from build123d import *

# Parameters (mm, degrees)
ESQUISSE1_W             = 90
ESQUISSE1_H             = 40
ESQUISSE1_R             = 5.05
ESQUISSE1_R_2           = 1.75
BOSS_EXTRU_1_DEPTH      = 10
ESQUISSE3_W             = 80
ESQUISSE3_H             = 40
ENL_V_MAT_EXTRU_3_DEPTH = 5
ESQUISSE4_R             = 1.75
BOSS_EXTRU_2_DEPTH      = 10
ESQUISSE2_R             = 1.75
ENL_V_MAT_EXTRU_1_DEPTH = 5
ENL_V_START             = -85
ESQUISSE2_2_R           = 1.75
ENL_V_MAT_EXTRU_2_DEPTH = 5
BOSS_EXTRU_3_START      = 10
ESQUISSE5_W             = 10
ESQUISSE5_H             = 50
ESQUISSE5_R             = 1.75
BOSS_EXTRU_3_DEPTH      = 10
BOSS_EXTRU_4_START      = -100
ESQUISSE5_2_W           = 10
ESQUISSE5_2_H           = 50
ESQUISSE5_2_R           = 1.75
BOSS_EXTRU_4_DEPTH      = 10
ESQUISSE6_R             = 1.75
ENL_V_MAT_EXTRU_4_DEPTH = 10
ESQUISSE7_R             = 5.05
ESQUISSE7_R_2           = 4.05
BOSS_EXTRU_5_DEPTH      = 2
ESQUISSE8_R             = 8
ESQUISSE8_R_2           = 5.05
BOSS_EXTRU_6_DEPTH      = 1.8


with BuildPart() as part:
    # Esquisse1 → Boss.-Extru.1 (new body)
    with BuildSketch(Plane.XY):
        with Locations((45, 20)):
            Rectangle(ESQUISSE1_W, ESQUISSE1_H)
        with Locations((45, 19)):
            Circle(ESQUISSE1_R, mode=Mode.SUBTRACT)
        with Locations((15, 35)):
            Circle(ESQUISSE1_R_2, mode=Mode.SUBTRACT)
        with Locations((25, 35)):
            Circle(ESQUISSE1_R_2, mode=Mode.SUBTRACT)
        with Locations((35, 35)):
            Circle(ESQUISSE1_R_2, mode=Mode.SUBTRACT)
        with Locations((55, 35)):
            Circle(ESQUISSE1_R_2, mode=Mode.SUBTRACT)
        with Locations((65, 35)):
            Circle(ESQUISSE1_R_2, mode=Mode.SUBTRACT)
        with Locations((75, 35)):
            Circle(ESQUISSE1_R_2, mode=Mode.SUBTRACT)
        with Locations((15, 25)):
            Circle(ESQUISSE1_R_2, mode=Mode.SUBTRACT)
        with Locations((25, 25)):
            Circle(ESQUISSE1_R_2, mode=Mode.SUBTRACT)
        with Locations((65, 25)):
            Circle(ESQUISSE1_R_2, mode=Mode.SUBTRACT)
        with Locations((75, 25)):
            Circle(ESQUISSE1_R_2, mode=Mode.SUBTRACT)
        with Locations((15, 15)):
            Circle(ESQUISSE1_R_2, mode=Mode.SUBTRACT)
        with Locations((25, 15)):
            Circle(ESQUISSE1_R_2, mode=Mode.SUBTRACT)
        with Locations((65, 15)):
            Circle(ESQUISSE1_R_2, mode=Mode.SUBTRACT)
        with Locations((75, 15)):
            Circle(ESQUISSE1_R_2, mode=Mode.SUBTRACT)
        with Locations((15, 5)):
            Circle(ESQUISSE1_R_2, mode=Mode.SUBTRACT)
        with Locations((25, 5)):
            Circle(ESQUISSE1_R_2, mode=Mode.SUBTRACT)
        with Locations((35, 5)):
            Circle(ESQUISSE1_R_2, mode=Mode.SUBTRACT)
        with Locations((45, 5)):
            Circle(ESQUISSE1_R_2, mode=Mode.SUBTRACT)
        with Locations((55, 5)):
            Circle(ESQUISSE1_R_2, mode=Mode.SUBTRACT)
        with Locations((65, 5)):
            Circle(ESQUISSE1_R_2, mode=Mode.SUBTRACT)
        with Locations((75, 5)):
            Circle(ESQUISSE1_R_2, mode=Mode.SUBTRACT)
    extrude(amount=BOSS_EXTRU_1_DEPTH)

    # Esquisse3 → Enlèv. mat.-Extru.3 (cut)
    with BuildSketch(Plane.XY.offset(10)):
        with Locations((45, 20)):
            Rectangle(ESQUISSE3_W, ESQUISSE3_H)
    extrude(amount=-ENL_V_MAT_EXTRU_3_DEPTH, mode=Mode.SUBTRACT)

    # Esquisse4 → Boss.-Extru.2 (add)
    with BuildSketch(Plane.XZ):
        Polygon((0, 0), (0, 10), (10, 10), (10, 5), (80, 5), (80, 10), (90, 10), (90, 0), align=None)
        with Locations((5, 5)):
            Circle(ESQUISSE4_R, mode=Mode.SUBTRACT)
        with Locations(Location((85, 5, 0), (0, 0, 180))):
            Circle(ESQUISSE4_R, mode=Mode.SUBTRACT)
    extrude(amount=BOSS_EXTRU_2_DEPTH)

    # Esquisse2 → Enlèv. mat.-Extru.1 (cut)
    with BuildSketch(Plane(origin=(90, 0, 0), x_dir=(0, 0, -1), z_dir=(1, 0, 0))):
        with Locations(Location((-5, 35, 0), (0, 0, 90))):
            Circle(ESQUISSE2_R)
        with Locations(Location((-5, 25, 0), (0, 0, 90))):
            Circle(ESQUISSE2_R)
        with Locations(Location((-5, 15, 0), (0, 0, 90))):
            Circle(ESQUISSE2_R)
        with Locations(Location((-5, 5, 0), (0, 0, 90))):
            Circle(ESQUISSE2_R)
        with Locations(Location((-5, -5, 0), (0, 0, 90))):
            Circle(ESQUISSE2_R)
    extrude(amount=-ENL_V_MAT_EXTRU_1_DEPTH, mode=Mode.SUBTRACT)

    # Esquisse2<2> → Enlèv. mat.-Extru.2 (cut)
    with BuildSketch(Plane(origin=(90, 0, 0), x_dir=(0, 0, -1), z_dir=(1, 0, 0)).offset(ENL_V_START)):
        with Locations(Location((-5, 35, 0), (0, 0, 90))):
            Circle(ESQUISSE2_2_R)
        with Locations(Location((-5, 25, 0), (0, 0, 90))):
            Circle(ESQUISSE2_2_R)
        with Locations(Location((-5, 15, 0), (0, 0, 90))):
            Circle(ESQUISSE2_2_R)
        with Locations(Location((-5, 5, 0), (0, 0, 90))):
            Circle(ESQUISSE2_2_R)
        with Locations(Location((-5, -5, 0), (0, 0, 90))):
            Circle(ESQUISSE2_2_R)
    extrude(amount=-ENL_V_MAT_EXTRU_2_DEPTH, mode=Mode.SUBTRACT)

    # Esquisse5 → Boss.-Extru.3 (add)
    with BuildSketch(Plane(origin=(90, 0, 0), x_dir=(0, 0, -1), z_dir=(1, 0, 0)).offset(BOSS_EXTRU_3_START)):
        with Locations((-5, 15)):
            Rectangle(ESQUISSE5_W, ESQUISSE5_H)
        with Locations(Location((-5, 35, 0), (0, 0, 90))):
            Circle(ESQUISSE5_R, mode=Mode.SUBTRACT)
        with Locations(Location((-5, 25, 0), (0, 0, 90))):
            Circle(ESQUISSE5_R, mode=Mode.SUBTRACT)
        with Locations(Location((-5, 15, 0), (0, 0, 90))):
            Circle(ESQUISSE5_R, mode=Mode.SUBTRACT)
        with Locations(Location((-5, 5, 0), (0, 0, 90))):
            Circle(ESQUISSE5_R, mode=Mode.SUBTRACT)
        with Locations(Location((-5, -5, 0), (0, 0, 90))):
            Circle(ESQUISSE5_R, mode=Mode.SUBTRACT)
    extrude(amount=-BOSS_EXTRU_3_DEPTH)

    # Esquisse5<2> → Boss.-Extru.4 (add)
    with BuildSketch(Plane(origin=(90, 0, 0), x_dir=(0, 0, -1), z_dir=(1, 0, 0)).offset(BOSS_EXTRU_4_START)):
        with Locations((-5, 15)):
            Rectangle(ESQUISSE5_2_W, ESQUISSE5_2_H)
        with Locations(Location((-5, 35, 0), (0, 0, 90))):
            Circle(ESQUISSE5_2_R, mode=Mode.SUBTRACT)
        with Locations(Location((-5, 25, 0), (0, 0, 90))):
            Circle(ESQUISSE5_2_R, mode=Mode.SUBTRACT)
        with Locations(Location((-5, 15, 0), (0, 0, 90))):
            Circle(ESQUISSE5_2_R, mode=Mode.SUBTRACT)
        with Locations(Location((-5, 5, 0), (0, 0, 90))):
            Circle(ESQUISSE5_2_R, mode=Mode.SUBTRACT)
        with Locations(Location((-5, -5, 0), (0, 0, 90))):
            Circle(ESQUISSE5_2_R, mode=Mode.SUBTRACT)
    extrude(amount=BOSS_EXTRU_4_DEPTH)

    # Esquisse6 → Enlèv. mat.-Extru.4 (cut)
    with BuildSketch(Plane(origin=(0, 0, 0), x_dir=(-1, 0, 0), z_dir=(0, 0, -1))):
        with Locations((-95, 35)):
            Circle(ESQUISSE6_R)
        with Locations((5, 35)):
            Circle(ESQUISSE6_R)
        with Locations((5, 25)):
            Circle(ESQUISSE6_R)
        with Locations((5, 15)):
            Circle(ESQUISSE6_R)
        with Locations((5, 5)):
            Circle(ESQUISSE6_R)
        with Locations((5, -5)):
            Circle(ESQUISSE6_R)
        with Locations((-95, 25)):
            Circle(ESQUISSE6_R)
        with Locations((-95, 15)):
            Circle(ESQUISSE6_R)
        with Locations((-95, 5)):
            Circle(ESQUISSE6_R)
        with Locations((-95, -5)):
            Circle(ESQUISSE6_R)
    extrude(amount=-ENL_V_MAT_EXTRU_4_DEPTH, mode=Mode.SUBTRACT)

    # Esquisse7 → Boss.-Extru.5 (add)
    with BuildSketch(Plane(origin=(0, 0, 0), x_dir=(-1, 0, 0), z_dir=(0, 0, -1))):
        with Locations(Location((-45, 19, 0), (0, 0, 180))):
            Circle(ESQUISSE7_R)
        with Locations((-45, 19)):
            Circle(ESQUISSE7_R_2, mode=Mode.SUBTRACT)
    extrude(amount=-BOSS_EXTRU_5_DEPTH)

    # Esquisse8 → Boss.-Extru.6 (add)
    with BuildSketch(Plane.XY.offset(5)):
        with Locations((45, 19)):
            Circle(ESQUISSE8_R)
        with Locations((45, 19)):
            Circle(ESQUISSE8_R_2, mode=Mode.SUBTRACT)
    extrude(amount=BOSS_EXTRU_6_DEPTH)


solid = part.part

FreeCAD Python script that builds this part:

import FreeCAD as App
import Part
import Sketcher

doc = App.newDocument("Part")
params = doc.addObject("Spreadsheet::Sheet", "Params")
for row, (alias, value) in enumerate([
    ("sketch1_diameter", "3.5 mm"),
    ("sketch1_diameter2", "10.1 mm"),
    ("sketch1_width", "90 mm"),
    ("sketch1_height", "40 mm"),
    ("pad1_length", "10 mm"),
    ("sketch2_width", "80 mm"),
    ("sketch2_height", "40 mm"),
    ("pocket1_length", "5 mm"),
    ("sketch3_diameter", "3.5 mm"),
    ("sketch3_width", "90 mm"),
    ("sketch3_width2", "10 mm"),
    ("sketch3_height", "5 mm"),
    ("pad2_length", "10 mm"),
    ("sketch4_diameter", "3.5 mm"),
    ("pocket2_length", "5 mm"),
    ("sketch5_diameter", "3.5 mm"),
    ("pocket3_length", "5 mm"),
    ("sketch6_diameter", "3.5 mm"),
    ("sketch6_width", "50 mm"),
    ("sketch6_height", "10 mm"),
    ("pad3_length", "10 mm"),
    ("sketch7_diameter", "3.5 mm"),
    ("sketch7_width", "50 mm"),
    ("sketch7_height", "10 mm"),
    ("pad4_length", "10 mm"),
    ("sketch8_diameter", "3.5 mm"),
    ("pocket4_length", "10 mm"),
    ("sketch9_diameter", "10.1 mm"),
    ("sketch9_diameter2", "8.1 mm"),
    ("pad5_length", "2 mm"),
    ("sketch10_diameter", "16 mm"),
    ("sketch10_diameter2", "10.1 mm"),
    ("pad6_length", "1.8 mm"),
], start=1):
    params.set(f"A{row}", alias)
    params.set(f"B{row}", "=" + value)
    params.setAlias(f"B{row}", alias)

body = doc.addObject("PartDesign::Body", "Body")

sketch1 = body.newObject("Sketcher::SketchObject", "Sketch")
sketch1.AttachmentSupport = (doc.getObject("XY_Plane"), [""])
sketch1.MapMode = "FlatFace"
sketch1.addGeometry(Part.LineSegment(App.Vector(0, 40, 0), App.Vector(0, 0, 0)), False)
sketch1.addGeometry(Part.LineSegment(App.Vector(0, 0, 0), App.Vector(90, 0, 0)), False)
sketch1.addGeometry(Part.LineSegment(App.Vector(90, 0, 0), App.Vector(90, 40, 0)), False)
sketch1.addGeometry(Part.LineSegment(App.Vector(90, 40, 0), App.Vector(0, 40, 0)), False)
sketch1.addGeometry(Part.Circle(App.Vector(15, 5, 0), App.Vector(0, 0, 1), 1.75), False)
sketch1.addGeometry(Part.Circle(App.Vector(25, 5, 0), App.Vector(0, 0, 1), 1.75), False)
sketch1.addGeometry(Part.Circle(App.Vector(35, 5, 0), App.Vector(0, 0, 1), 1.75), False)
sketch1.addGeometry(Part.Circle(App.Vector(15, 15, 0), App.Vector(0, 0, 1), 1.75), False)
sketch1.addGeometry(Part.Circle(App.Vector(25, 15, 0), App.Vector(0, 0, 1), 1.75), False)
sketch1.addGeometry(Part.Circle(App.Vector(45, 5, 0), App.Vector(0, 0, 1), 1.75), False)
sketch1.addGeometry(Part.Circle(App.Vector(55, 5, 0), App.Vector(0, 0, 1), 1.75), False)
sketch1.addGeometry(Part.Circle(App.Vector(65, 5, 0), App.Vector(0, 0, 1), 1.75), False)
sketch1.addGeometry(Part.Circle(App.Vector(75, 5, 0), App.Vector(0, 0, 1), 1.75), False)
sketch1.addGeometry(Part.Circle(App.Vector(45, 19, 0), App.Vector(0, 0, 1), 5.05), False)
sketch1.addGeometry(Part.Circle(App.Vector(65, 15, 0), App.Vector(0, 0, 1), 1.75), False)
sketch1.addGeometry(Part.Circle(App.Vector(75, 15, 0), App.Vector(0, 0, 1), 1.75), False)
sketch1.addGeometry(Part.Circle(App.Vector(15, 25, 0), App.Vector(0, 0, 1), 1.75), False)
sketch1.addGeometry(Part.Circle(App.Vector(25, 25, 0), App.Vector(0, 0, 1), 1.75), False)
sketch1.addGeometry(Part.Circle(App.Vector(15, 35, 0), App.Vector(0, 0, 1), 1.75), False)
sketch1.addGeometry(Part.Circle(App.Vector(25, 35, 0), App.Vector(0, 0, 1), 1.75), False)
sketch1.addGeometry(Part.Circle(App.Vector(35, 35, 0), App.Vector(0, 0, 1), 1.75), False)
sketch1.addGeometry(Part.Circle(App.Vector(65, 25, 0), App.Vector(0, 0, 1), 1.75), False)
sketch1.addGeometry(Part.Circle(App.Vector(75, 25, 0), App.Vector(0, 0, 1), 1.75), False)
sketch1.addGeometry(Part.Circle(App.Vector(55, 35, 0), App.Vector(0, 0, 1), 1.75), False)
sketch1.addGeometry(Part.Circle(App.Vector(65, 35, 0), App.Vector(0, 0, 1), 1.75), False)
sketch1.addGeometry(Part.Circle(App.Vector(75, 35, 0), App.Vector(0, 0, 1), 1.75), False)
sketch1.addConstraint(Sketcher.Constraint("Coincident", 0, 2, 1, 1))
sketch1.addConstraint(Sketcher.Constraint("Coincident", 1, 2, 2, 1))
sketch1.addConstraint(Sketcher.Constraint("Coincident", 2, 2, 3, 1))
sketch1.addConstraint(Sketcher.Constraint("Coincident", 3, 2, 0, 1))
sketch1.addConstraint(Sketcher.Constraint("Vertical", 0))
sketch1.addConstraint(Sketcher.Constraint("Horizontal", 1))
sketch1.addConstraint(Sketcher.Constraint("Vertical", 2))
sketch1.addConstraint(Sketcher.Constraint("Horizontal", 3))
sketch1.addConstraint(Sketcher.Constraint("Coincident", 0, 2, -1, 1))
sketch1.addConstraint(Sketcher.Constraint("Equal", 4, 5))
sketch1.addConstraint(Sketcher.Constraint("Equal", 5, 6))
sketch1.addConstraint(Sketcher.Constraint("Equal", 6, 7))
sketch1.addConstraint(Sketcher.Constraint("Equal", 7, 8))
sketch1.addConstraint(Sketcher.Constraint("Equal", 8, 9))
sketch1.addConstraint(Sketcher.Constraint("Equal", 9, 10))
sketch1.addConstraint(Sketcher.Constraint("Equal", 10, 11))
sketch1.addConstraint(Sketcher.Constraint("Equal", 11, 12))
sketch1.addConstraint(Sketcher.Constraint("Equal", 12, 14))
sketch1.addConstraint(Sketcher.Constraint("Equal", 14, 15))
sketch1.addConstraint(Sketcher.Constraint("Equal", 15, 16))
sketch1.addConstraint(Sketcher.Constraint("Equal", 16, 17))
sketch1.addConstraint(Sketcher.Constraint("Equal", 17, 18))
sketch1.addConstraint(Sketcher.Constraint("Equal", 18, 19))
sketch1.addConstraint(Sketcher.Constraint("Equal", 19, 20))
sketch1.addConstraint(Sketcher.Constraint("Equal", 20, 21))
sketch1.addConstraint(Sketcher.Constraint("Equal", 21, 22))
sketch1.addConstraint(Sketcher.Constraint("Equal", 22, 23))
sketch1.addConstraint(Sketcher.Constraint("Equal", 23, 24))
sketch1.addConstraint(Sketcher.Constraint("Equal", 24, 25))
sketch1.addConstraint(Sketcher.Constraint("Horizontal", 4, 3, 5, 3))
sketch1.addConstraint(Sketcher.Constraint("Horizontal", 5, 3, 6, 3))
sketch1.addConstraint(Sketcher.Constraint("Horizontal", 7, 3, 8, 3))
sketch1.addConstraint(Sketcher.Constraint("Horizontal", 6, 3, 9, 3))
sketch1.addConstraint(Sketcher.Constraint("Horizontal", 9, 3, 10, 3))
sketch1.addConstraint(Sketcher.Constraint("Horizontal", 10, 3, 11, 3))
sketch1.addConstraint(Sketcher.Constraint("Horizontal", 11, 3, 12, 3))
sketch1.addConstraint(Sketcher.Constraint("Horizontal", 8, 3, 14, 3))
sketch1.addConstraint(Sketcher.Constraint("Horizontal", 14, 3, 15, 3))
sketch1.addConstraint(Sketcher.Constraint("Horizontal", 16, 3, 17, 3))
sketch1.addConstraint(Sketcher.Constraint("Horizontal", 18, 3, 19, 3))
sketch1.addConstraint(Sketcher.Constraint("Horizontal", 19, 3, 20, 3))
sketch1.addConstraint(Sketcher.Constraint("Horizontal", 17, 3, 21, 3))
sketch1.addConstraint(Sketcher.Constraint("Horizontal", 21, 3, 22, 3))
sketch1.addConstraint(Sketcher.Constraint("Horizontal", 20, 3, 23, 3))
sketch1.addConstraint(Sketcher.Constraint("Horizontal", 23, 3, 24, 3))
sketch1.addConstraint(Sketcher.Constraint("Horizontal", 24, 3, 25, 3))
sketch1.addConstraint(Sketcher.Constraint("Vertical", 4, 3, 7, 3))
sketch1.addConstraint(Sketcher.Constraint("Vertical", 5, 3, 8, 3))
sketch1.addConstraint(Sketcher.Constraint("Vertical", 9, 3, 13, 3))
sketch1.addConstraint(Sketcher.Constraint("Vertical", 11, 3, 14, 3))
sketch1.addConstraint(Sketcher.Constraint("Vertical", 12, 3, 15, 3))
sketch1.addConstraint(Sketcher.Constraint("Vertical", 7, 3, 16, 3))
sketch1.addConstraint(Sketcher.Constraint("Vertical", 8, 3, 17, 3))
sketch1.addConstraint(Sketcher.Constraint("Vertical", 16, 3, 18, 3))
sketch1.addConstraint(Sketcher.Constraint("Vertical", 17, 3, 19, 3))
sketch1.addConstraint(Sketcher.Constraint("Vertical", 6, 3, 20, 3))
sketch1.addConstraint(Sketcher.Constraint("Vertical", 14, 3, 21, 3))
sketch1.addConstraint(Sketcher.Constraint("Vertical", 15, 3, 22, 3))
sketch1.addConstraint(Sketcher.Constraint("Vertical", 10, 3, 23, 3))
sketch1.addConstraint(Sketcher.Constraint("Vertical", 21, 3, 24, 3))
sketch1.addConstraint(Sketcher.Constraint("Vertical", 22, 3, 25, 3))
sketch1.addConstraint(Sketcher.Constraint("Diameter", 4, 3.5))
sketch1.addConstraint(Sketcher.Constraint("Diameter", 13, 10.1))
sketch1.addConstraint(Sketcher.Constraint("DistanceX", 1, 1, 1, 2, 90.0))
sketch1.addConstraint(Sketcher.Constraint("DistanceY", 0, 2, 0, 1, 40.0))
sketch1.addConstraint(Sketcher.Constraint("DistanceX", -1, 1, 4, 3, 15.0))
sketch1.addConstraint(Sketcher.Constraint("DistanceY", -1, 1, 4, 3, 5.0))
sketch1.addConstraint(Sketcher.Constraint("DistanceX", -1, 1, 5, 3, 25.0))
sketch1.addConstraint(Sketcher.Constraint("DistanceX", -1, 1, 6, 3, 35.0))
sketch1.addConstraint(Sketcher.Constraint("DistanceY", -1, 1, 7, 3, 15.0))
sketch1.addConstraint(Sketcher.Constraint("DistanceX", -1, 1, 9, 3, 45.0))
sketch1.addConstraint(Sketcher.Constraint("DistanceX", -1, 1, 10, 3, 55.0))
sketch1.addConstraint(Sketcher.Constraint("DistanceX", -1, 1, 11, 3, 65.0))
sketch1.addConstraint(Sketcher.Constraint("DistanceX", -1, 1, 12, 3, 75.0))
sketch1.addConstraint(Sketcher.Constraint("DistanceY", -1, 1, 13, 3, 19.0))
sketch1.addConstraint(Sketcher.Constraint("DistanceY", -1, 1, 16, 3, 25.0))
sketch1.addConstraint(Sketcher.Constraint("DistanceY", -1, 1, 18, 3, 35.0))
sketch1.setExpression("Constraints[61]", "Params.sketch1_diameter")
sketch1.setExpression("Constraints[62]", "Params.sketch1_diameter2")
sketch1.setExpression("Constraints[63]", "Params.sketch1_width")
sketch1.setExpression("Constraints[64]", "Params.sketch1_height")
pad1 = body.newObject("PartDesign::Pad", "Pad")
pad1.Profile = sketch1
pad1.setExpression("Length", "Params.pad1_length")

sketch2 = body.newObject("Sketcher::SketchObject", "Sketch001")
sketch2.AttachmentSupport = (doc.getObject("XY_Plane"), [""])
sketch2.MapMode = "FlatFace"
sketch2.AttachmentOffset = App.Placement(App.Vector(0, 0, 10), App.Rotation())
sketch2.addGeometry(Part.LineSegment(App.Vector(5, 40, 0), App.Vector(5, 0, 0)), False)
sketch2.addGeometry(Part.LineSegment(App.Vector(5, 0, 0), App.Vector(85, 0, 0)), False)
sketch2.addGeometry(Part.LineSegment(App.Vector(85, 0, 0), App.Vector(85, 40, 0)), False)
sketch2.addGeometry(Part.LineSegment(App.Vector(85, 40, 0), App.Vector(5, 40, 0)), False)
sketch2.addConstraint(Sketcher.Constraint("Coincident", 0, 2, 1, 1))
sketch2.addConstraint(Sketcher.Constraint("Coincident", 1, 2, 2, 1))
sketch2.addConstraint(Sketcher.Constraint("Coincident", 2, 2, 3, 1))
sketch2.addConstraint(Sketcher.Constraint("Coincident", 3, 2, 0, 1))
sketch2.addConstraint(Sketcher.Constraint("Vertical", 0))
sketch2.addConstraint(Sketcher.Constraint("Horizontal", 1))
sketch2.addConstraint(Sketcher.Constraint("Vertical", 2))
sketch2.addConstraint(Sketcher.Constraint("Horizontal", 3))
sketch2.addConstraint(Sketcher.Constraint("PointOnObject", 0, 2, -1))
sketch2.addConstraint(Sketcher.Constraint("DistanceX", 1, 1, 1, 2, 80.0))
sketch2.addConstraint(Sketcher.Constraint("DistanceY", 0, 2, 0, 1, 40.0))
sketch2.addConstraint(Sketcher.Constraint("DistanceX", -1, 1, 0, 2, 5.0))
sketch2.setExpression("Constraints[9]", "Params.sketch2_width")
sketch2.setExpression("Constraints[10]", "Params.sketch2_height")
pocket1 = body.newObject("PartDesign::Pocket", "Pocket")
pocket1.Profile = sketch2
pocket1.setExpression("Length", "Params.pocket1_length")

sketch3 = body.newObject("Sketcher::SketchObject", "Sketch002")
sketch3.AttachmentSupport = (doc.getObject("XZ_Plane"), [""])
sketch3.MapMode = "FlatFace"
sketch3.addGeometry(Part.LineSegment(App.Vector(0, 10, 0), App.Vector(0, 0, 0)), False)
sketch3.addGeometry(Part.LineSegment(App.Vector(0, 0, 0), App.Vector(90, 0, 0)), False)
sketch3.addGeometry(Part.LineSegment(App.Vector(90, 0, 0), App.Vector(90, 10, 0)), False)
sketch3.addGeometry(Part.LineSegment(App.Vector(90, 10, 0), App.Vector(80, 10, 0)), False)
sketch3.addGeometry(Part.LineSegment(App.Vector(80, 10, 0), App.Vector(80, 5, 0)), False)
sketch3.addGeometry(Part.LineSegment(App.Vector(80, 5, 0), App.Vector(10, 5, 0)), False)
sketch3.addGeometry(Part.LineSegment(App.Vector(10, 5, 0), App.Vector(10, 10, 0)), False)
sketch3.addGeometry(Part.LineSegment(App.Vector(10, 10, 0), App.Vector(0, 10, 0)), False)
sketch3.addGeometry(Part.Circle(App.Vector(85, 5, 0), App.Vector(0, 0, 1), 1.75), False)
sketch3.addGeometry(Part.Circle(App.Vector(5, 5, 0), App.Vector(0, 0, 1), 1.75), False)
sketch3.addConstraint(Sketcher.Constraint("Coincident", 0, 2, 1, 1))
sketch3.addConstraint(Sketcher.Constraint("Coincident", 1, 2, 2, 1))
sketch3.addConstraint(Sketcher.Constraint("Coincident", 2, 2, 3, 1))
sketch3.addConstraint(Sketcher.Constraint("Coincident", 3, 2, 4, 1))
sketch3.addConstraint(Sketcher.Constraint("Coincident", 4, 2, 5, 1))
sketch3.addConstraint(Sketcher.Constraint("Coincident", 5, 2, 6, 1))
sketch3.addConstraint(Sketcher.Constraint("Coincident", 6, 2, 7, 1))
sketch3.addConstraint(Sketcher.Constraint("Coincident", 7, 2, 0, 1))
sketch3.addConstraint(Sketcher.Constraint("Vertical", 0))
sketch3.addConstraint(Sketcher.Constraint("Horizontal", 1))
sketch3.addConstraint(Sketcher.Constraint("Vertical", 2))
sketch3.addConstraint(Sketcher.Constraint("Horizontal", 3))
sketch3.addConstraint(Sketcher.Constraint("Vertical", 4))
sketch3.addConstraint(Sketcher.Constraint("Horizontal", 5))
sketch3.addConstraint(Sketcher.Constraint("Vertical", 6))
sketch3.addConstraint(Sketcher.Constraint("Horizontal", 7))
sketch3.addConstraint(Sketcher.Constraint("Coincident", 0, 2, -1, 1))
sketch3.addConstraint(Sketcher.Constraint("Equal", 8, 9))
sketch3.addConstraint(Sketcher.Constraint("Horizontal", 8, 3, 9, 3))
sketch3.addConstraint(Sketcher.Constraint("Horizontal", 9, 3, 4, 2))
sketch3.addConstraint(Sketcher.Constraint("Horizontal", 3, 2, 6, 2))
sketch3.addConstraint(Sketcher.Constraint("Equal", 3, 7))
sketch3.addConstraint(Sketcher.Constraint("Equal", 7, 0))
sketch3.addConstraint(Sketcher.Constraint("Diameter", 8, 3.5))
sketch3.addConstraint(Sketcher.Constraint("DistanceX", 1, 1, 1, 2, 90.0))
sketch3.addConstraint(Sketcher.Constraint("DistanceX", 3, 2, 3, 1, 10.0))
sketch3.addConstraint(Sketcher.Constraint("DistanceY", 4, 2, 4, 1, 5.0))
sketch3.addConstraint(Sketcher.Constraint("DistanceX", -1, 1, 8, 3, 85.0))
sketch3.addConstraint(Sketcher.Constraint("DistanceX", -1, 1, 9, 3, 5.0))
sketch3.setExpression("Constraints[23]", "Params.sketch3_diameter")
sketch3.setExpression("Constraints[24]", "Params.sketch3_width")
sketch3.setExpression("Constraints[25]", "Params.sketch3_width2")
sketch3.setExpression("Constraints[26]", "Params.sketch3_height")
pad2 = body.newObject("PartDesign::Pad", "Pad001")
pad2.Profile = sketch3
pad2.setExpression("Length", "Params.pad2_length")

sketch4 = body.newObject("Sketcher::SketchObject", "Sketch003")
sketch4.AttachmentSupport = (doc.getObject("YZ_Plane"), [""])
sketch4.MapMode = "FlatFace"
sketch4.AttachmentOffset = App.Placement(App.Vector(0, 0, 90), App.Rotation())
sketch4.addGeometry(Part.Circle(App.Vector(35, 5, 0), App.Vector(0, 0, 1), 1.75), False)
sketch4.addGeometry(Part.Circle(App.Vector(25, 5, 0), App.Vector(0, 0, 1), 1.75), False)
sketch4.addGeometry(Part.Circle(App.Vector(15, 5, 0), App.Vector(0, 0, 1), 1.75), False)
sketch4.addGeometry(Part.Circle(App.Vector(5, 5, 0), App.Vector(0, 0, 1), 1.75), False)
sketch4.addGeometry(Part.Circle(App.Vector(-5, 5, 0), App.Vector(0, 0, 1), 1.75), False)
sketch4.addConstraint(Sketcher.Constraint("Equal", 0, 1))
sketch4.addConstraint(Sketcher.Constraint("Equal", 1, 2))
sketch4.addConstraint(Sketcher.Constraint("Equal", 2, 3))
sketch4.addConstraint(Sketcher.Constraint("Equal", 3, 4))
sketch4.addConstraint(Sketcher.Constraint("Symmetric", 3, 3, 4, 3, -2))
sketch4.addConstraint(Sketcher.Constraint("Horizontal", 0, 3, 1, 3))
sketch4.addConstraint(Sketcher.Constraint("Horizontal", 1, 3, 2, 3))
sketch4.addConstraint(Sketcher.Constraint("Horizontal", 2, 3, 3, 3))
sketch4.addConstraint(Sketcher.Constraint("Diameter", 0, 3.5))
sketch4.addConstraint(Sketcher.Constraint("DistanceX", -1, 1, 0, 3, 35.0))
sketch4.addConstraint(Sketcher.Constraint("DistanceY", -1, 1, 0, 3, 5.0))
sketch4.addConstraint(Sketcher.Constraint("DistanceX", -1, 1, 1, 3, 25.0))
sketch4.addConstraint(Sketcher.Constraint("DistanceX", -1, 1, 2, 3, 15.0))
sketch4.addConstraint(Sketcher.Constraint("DistanceX", -1, 1, 3, 3, 5.0))
sketch4.setExpression("Constraints[8]", "Params.sketch4_diameter")
pocket2 = body.newObject("PartDesign::Pocket", "Pocket001")
pocket2.Profile = sketch4
pocket2.setExpression("Length", "Params.pocket2_length")

sketch5 = body.newObject("Sketcher::SketchObject", "Sketch004")
sketch5.AttachmentSupport = (doc.getObject("YZ_Plane"), [""])
sketch5.MapMode = "FlatFace"
sketch5.AttachmentOffset = App.Placement(App.Vector(0, 0, 5), App.Rotation())
sketch5.addGeometry(Part.Circle(App.Vector(35, 5, 0), App.Vector(0, 0, 1), 1.75), False)
sketch5.addGeometry(Part.Circle(App.Vector(25, 5, 0), App.Vector(0, 0, 1), 1.75), False)
sketch5.addGeometry(Part.Circle(App.Vector(15, 5, 0), App.Vector(0, 0, 1), 1.75), False)
sketch5.addGeometry(Part.Circle(App.Vector(5, 5, 0), App.Vector(0, 0, 1), 1.75), False)
sketch5.addGeometry(Part.Circle(App.Vector(-5, 5, 0), App.Vector(0, 0, 1), 1.75), False)
sketch5.addConstraint(Sketcher.Constraint("Equal", 0, 1))
sketch5.addConstraint(Sketcher.Constraint("Equal", 1, 2))
sketch5.addConstraint(Sketcher.Constraint("Equal", 2, 3))
sketch5.addConstraint(Sketcher.Constraint("Equal", 3, 4))
sketch5.addConstraint(Sketcher.Constraint("Symmetric", 3, 3, 4, 3, -2))
sketch5.addConstraint(Sketcher.Constraint("Horizontal", 0, 3, 1, 3))
sketch5.addConstraint(Sketcher.Constraint("Horizontal", 1, 3, 2, 3))
sketch5.addConstraint(Sketcher.Constraint("Horizontal", 2, 3, 3, 3))
sketch5.addConstraint(Sketcher.Constraint("Diameter", 0, 3.5))
sketch5.addConstraint(Sketcher.Constraint("DistanceX", -1, 1, 0, 3, 35.0))
sketch5.addConstraint(Sketcher.Constraint("DistanceY", -1, 1, 0, 3, 5.0))
sketch5.addConstraint(Sketcher.Constraint("DistanceX", -1, 1, 1, 3, 25.0))
sketch5.addConstraint(Sketcher.Constraint("DistanceX", -1, 1, 2, 3, 15.0))
sketch5.addConstraint(Sketcher.Constraint("DistanceX", -1, 1, 3, 3, 5.0))
sketch5.setExpression("Constraints[8]", "Params.sketch5_diameter")
pocket3 = body.newObject("PartDesign::Pocket", "Pocket002")
pocket3.Profile = sketch5
pocket3.setExpression("Length", "Params.pocket3_length")

sketch6 = body.newObject("Sketcher::SketchObject", "Sketch005")
sketch6.AttachmentSupport = (doc.getObject("YZ_Plane"), [""])
sketch6.MapMode = "FlatFace"
sketch6.AttachmentOffset = App.Placement(App.Vector(0, 0, 100), App.Rotation())
sketch6.addGeometry(Part.LineSegment(App.Vector(40, 10, 0), App.Vector(-10, 10, 0)), False)
sketch6.addGeometry(Part.LineSegment(App.Vector(-10, 10, 0), App.Vector(-10, 0, 0)), False)
sketch6.addGeometry(Part.LineSegment(App.Vector(-10, 0, 0), App.Vector(40, 0, 0)), False)
sketch6.addGeometry(Part.LineSegment(App.Vector(40, 0, 0), App.Vector(40, 10, 0)), False)
sketch6.addGeometry(Part.Circle(App.Vector(-5, 5, 0), App.Vector(0, 0, 1), 1.75), False)
sketch6.addGeometry(Part.Circle(App.Vector(5, 5, 0), App.Vector(0, 0, 1), 1.75), False)
sketch6.addGeometry(Part.Circle(App.Vector(15, 5, 0), App.Vector(0, 0, 1), 1.75), False)
sketch6.addGeometry(Part.Circle(App.Vector(25, 5, 0), App.Vector(0, 0, 1), 1.75), False)
sketch6.addGeometry(Part.Circle(App.Vector(35, 5, 0), App.Vector(0, 0, 1), 1.75), False)
sketch6.addConstraint(Sketcher.Constraint("Coincident", 0, 2, 1, 1))
sketch6.addConstraint(Sketcher.Constraint("Coincident", 1, 2, 2, 1))
sketch6.addConstraint(Sketcher.Constraint("Coincident", 2, 2, 3, 1))
sketch6.addConstraint(Sketcher.Constraint("Coincident", 3, 2, 0, 1))
sketch6.addConstraint(Sketcher.Constraint("Horizontal", 0))
sketch6.addConstraint(Sketcher.Constraint("Vertical", 1))
sketch6.addConstraint(Sketcher.Constraint("Horizontal", 2))
sketch6.addConstraint(Sketcher.Constraint("Vertical", 3))
sketch6.addConstraint(Sketcher.Constraint("Equal", 4, 5))
sketch6.addConstraint(Sketcher.Constraint("Equal", 5, 6))
sketch6.addConstraint(Sketcher.Constraint("Equal", 6, 7))
sketch6.addConstraint(Sketcher.Constraint("Equal", 7, 8))
sketch6.addConstraint(Sketcher.Constraint("Symmetric", 4, 3, 5, 3, -2))
sketch6.addConstraint(Sketcher.Constraint("PointOnObject", 1, 2, -1))
sketch6.addConstraint(Sketcher.Constraint("Horizontal", 5, 3, 6, 3))
sketch6.addConstraint(Sketcher.Constraint("Horizontal", 6, 3, 7, 3))
sketch6.addConstraint(Sketcher.Constraint("Horizontal", 7, 3, 8, 3))
sketch6.addConstraint(Sketcher.Constraint("Diameter", 4, 3.5))
sketch6.addConstraint(Sketcher.Constraint("DistanceX", 0, 2, 0, 1, 50.0))
sketch6.addConstraint(Sketcher.Constraint("DistanceY", 1, 2, 1, 1, 10.0))
sketch6.addConstraint(Sketcher.Constraint("DistanceX", 4, 3, -1, 1, 5.0))
sketch6.addConstraint(Sketcher.Constraint("DistanceY", -1, 1, 4, 3, 5.0))
sketch6.addConstraint(Sketcher.Constraint("DistanceX", -1, 1, 6, 3, 15.0))
sketch6.addConstraint(Sketcher.Constraint("DistanceX", -1, 1, 7, 3, 25.0))
sketch6.addConstraint(Sketcher.Constraint("DistanceX", -1, 1, 8, 3, 35.0))
sketch6.addConstraint(Sketcher.Constraint("DistanceX", 0, 2, -1, 1, 10.0))
sketch6.setExpression("Constraints[17]", "Params.sketch6_diameter")
sketch6.setExpression("Constraints[18]", "Params.sketch6_width")
sketch6.setExpression("Constraints[19]", "Params.sketch6_height")
pad3 = body.newObject("PartDesign::Pad", "Pad002")
pad3.Profile = sketch6
pad3.setExpression("Length", "Params.pad3_length")
pad3.Reversed = True

sketch7 = body.newObject("Sketcher::SketchObject", "Sketch006")
sketch7.AttachmentSupport = (doc.getObject("YZ_Plane"), [""])
sketch7.MapMode = "FlatFace"
sketch7.AttachmentOffset = App.Placement(App.Vector(0, 0, -10), App.Rotation())
sketch7.addGeometry(Part.LineSegment(App.Vector(40, 10, 0), App.Vector(-10, 10, 0)), False)
sketch7.addGeometry(Part.LineSegment(App.Vector(-10, 10, 0), App.Vector(-10, 0, 0)), False)
sketch7.addGeometry(Part.LineSegment(App.Vector(-10, 0, 0), App.Vector(40, 0, 0)), False)
sketch7.addGeometry(Part.LineSegment(App.Vector(40, 0, 0), App.Vector(40, 10, 0)), False)
sketch7.addGeometry(Part.Circle(App.Vector(-5, 5, 0), App.Vector(0, 0, 1), 1.75), False)
sketch7.addGeometry(Part.Circle(App.Vector(5, 5, 0), App.Vector(0, 0, 1), 1.75), False)
sketch7.addGeometry(Part.Circle(App.Vector(15, 5, 0), App.Vector(0, 0, 1), 1.75), False)
sketch7.addGeometry(Part.Circle(App.Vector(25, 5, 0), App.Vector(0, 0, 1), 1.75), False)
sketch7.addGeometry(Part.Circle(App.Vector(35, 5, 0), App.Vector(0, 0, 1), 1.75), False)
sketch7.addConstraint(Sketcher.Constraint("Coincident", 0, 2, 1, 1))
sketch7.addConstraint(Sketcher.Constraint("Coincident", 1, 2, 2, 1))
sketch7.addConstraint(Sketcher.Constraint("Coincident", 2, 2, 3, 1))
sketch7.addConstraint(Sketcher.Constraint("Coincident", 3, 2, 0, 1))
sketch7.addConstraint(Sketcher.Constraint("Horizontal", 0))
sketch7.addConstraint(Sketcher.Constraint("Vertical", 1))
sketch7.addConstraint(Sketcher.Constraint("Horizontal", 2))
sketch7.addConstraint(Sketcher.Constraint("Vertical", 3))
sketch7.addConstraint(Sketcher.Constraint("Equal", 4, 5))
sketch7.addConstraint(Sketcher.Constraint("Equal", 5, 6))
sketch7.addConstraint(Sketcher.Constraint("Equal", 6, 7))
sketch7.addConstraint(Sketcher.Constraint("Equal", 7, 8))
sketch7.addConstraint(Sketcher.Constraint("Symmetric", 4, 3, 5, 3, -2))
sketch7.addConstraint(Sketcher.Constraint("PointOnObject", 1, 2, -1))
sketch7.addConstraint(Sketcher.Constraint("Horizontal", 5, 3, 6, 3))
sketch7.addConstraint(Sketcher.Constraint("Horizontal", 6, 3, 7, 3))
sketch7.addConstraint(Sketcher.Constraint("Horizontal", 7, 3, 8, 3))
sketch7.addConstraint(Sketcher.Constraint("Diameter", 4, 3.5))
sketch7.addConstraint(Sketcher.Constraint("DistanceX", 0, 2, 0, 1, 50.0))
sketch7.addConstraint(Sketcher.Constraint("DistanceY", 1, 2, 1, 1, 10.0))
sketch7.addConstraint(Sketcher.Constraint("DistanceX", 4, 3, -1, 1, 5.0))
sketch7.addConstraint(Sketcher.Constraint("DistanceY", -1, 1, 4, 3, 5.0))
sketch7.addConstraint(Sketcher.Constraint("DistanceX", -1, 1, 6, 3, 15.0))
sketch7.addConstraint(Sketcher.Constraint("DistanceX", -1, 1, 7, 3, 25.0))
sketch7.addConstraint(Sketcher.Constraint("DistanceX", -1, 1, 8, 3, 35.0))
sketch7.addConstraint(Sketcher.Constraint("DistanceX", 0, 2, -1, 1, 10.0))
sketch7.setExpression("Constraints[17]", "Params.sketch7_diameter")
sketch7.setExpression("Constraints[18]", "Params.sketch7_width")
sketch7.setExpression("Constraints[19]", "Params.sketch7_height")
pad4 = body.newObject("PartDesign::Pad", "Pad003")
pad4.Profile = sketch7
pad4.setExpression("Length", "Params.pad4_length")

sketch8 = body.newObject("Sketcher::SketchObject", "Sketch007")
sketch8.AttachmentSupport = (doc.getObject("XY_Plane"), [""])
sketch8.MapMode = "FlatFace"
sketch8.addGeometry(Part.Circle(App.Vector(95, 35, 0), App.Vector(0, 0, 1), 1.75), False)
sketch8.addGeometry(Part.Circle(App.Vector(-5, 35, 0), App.Vector(0, 0, 1), 1.75), False)
sketch8.addGeometry(Part.Circle(App.Vector(-5, 25, 0), App.Vector(0, 0, 1), 1.75), False)
sketch8.addGeometry(Part.Circle(App.Vector(-5, 15, 0), App.Vector(0, 0, 1), 1.75), False)
sketch8.addGeometry(Part.Circle(App.Vector(-5, 5, 0), App.Vector(0, 0, 1), 1.75), False)
sketch8.addGeometry(Part.Circle(App.Vector(-5, -5, 0), App.Vector(0, 0, 1), 1.75), False)
sketch8.addGeometry(Part.Circle(App.Vector(95, 25, 0), App.Vector(0, 0, 1), 1.75), False)
sketch8.addGeometry(Part.Circle(App.Vector(95, 15, 0), App.Vector(0, 0, 1), 1.75), False)
sketch8.addGeometry(Part.Circle(App.Vector(95, 5, 0), App.Vector(0, 0, 1), 1.75), False)
sketch8.addGeometry(Part.Circle(App.Vector(95, -5, 0), App.Vector(0, 0, 1), 1.75), False)
sketch8.addConstraint(Sketcher.Constraint("Equal", 0, 1))
sketch8.addConstraint(Sketcher.Constraint("Equal", 1, 2))
sketch8.addConstraint(Sketcher.Constraint("Equal", 2, 3))
sketch8.addConstraint(Sketcher.Constraint("Equal", 3, 4))
sketch8.addConstraint(Sketcher.Constraint("Equal", 4, 5))
sketch8.addConstraint(Sketcher.Constraint("Equal", 5, 6))
sketch8.addConstraint(Sketcher.Constraint("Equal", 6, 7))
sketch8.addConstraint(Sketcher.Constraint("Equal", 7, 8))
sketch8.addConstraint(Sketcher.Constraint("Equal", 8, 9))
sketch8.addConstraint(Sketcher.Constraint("Symmetric", 4, 3, 5, 3, -1))
sketch8.addConstraint(Sketcher.Constraint("Symmetric", 8, 3, 9, 3, -1))
sketch8.addConstraint(Sketcher.Constraint("Horizontal", 0, 3, 1, 3))
sketch8.addConstraint(Sketcher.Constraint("Horizontal", 2, 3, 6, 3))
sketch8.addConstraint(Sketcher.Constraint("Horizontal", 3, 3, 7, 3))
sketch8.addConstraint(Sketcher.Constraint("Horizontal", 4, 3, 8, 3))
sketch8.addConstraint(Sketcher.Constraint("Vertical", 1, 3, 2, 3))
sketch8.addConstraint(Sketcher.Constraint("Vertical", 2, 3, 3, 3))
sketch8.addConstraint(Sketcher.Constraint("Vertical", 3, 3, 4, 3))
sketch8.addConstraint(Sketcher.Constraint("Vertical", 0, 3, 6, 3))
sketch8.addConstraint(Sketcher.Constraint("Vertical", 6, 3, 7, 3))
sketch8.addConstraint(Sketcher.Constraint("Vertical", 7, 3, 8, 3))
sketch8.addConstraint(Sketcher.Constraint("Diameter", 0, 3.5))
sketch8.addConstraint(Sketcher.Constraint("DistanceX", -1, 1, 0, 3, 95.0))
sketch8.addConstraint(Sketcher.Constraint("DistanceY", -1, 1, 0, 3, 35.0))
sketch8.addConstraint(Sketcher.Constraint("DistanceX", 1, 3, -1, 1, 5.0))
sketch8.addConstraint(Sketcher.Constraint("DistanceY", -1, 1, 2, 3, 25.0))
sketch8.addConstraint(Sketcher.Constraint("DistanceY", -1, 1, 3, 3, 15.0))
sketch8.addConstraint(Sketcher.Constraint("DistanceY", -1, 1, 4, 3, 5.0))
sketch8.setExpression("Constraints[21]", "Params.sketch8_diameter")
pocket4 = body.newObject("PartDesign::Pocket", "Pocket003")
pocket4.Profile = sketch8
pocket4.setExpression("Length", "Params.pocket4_length")
pocket4.Reversed = True

sketch9 = body.newObject("Sketcher::SketchObject", "Sketch008")
sketch9.AttachmentSupport = (doc.getObject("XY_Plane"), [""])
sketch9.MapMode = "FlatFace"
sketch9.addGeometry(Part.Circle(App.Vector(45, 19, 0), App.Vector(0, 0, 1), 5.05), False)
sketch9.addGeometry(Part.Circle(App.Vector(45, 19, 0), App.Vector(0, 0, 1), 4.05), False)
sketch9.addConstraint(Sketcher.Constraint("Coincident", 1, 3, 0, 3))
sketch9.addConstraint(Sketcher.Constraint("Diameter", 0, 10.1))
sketch9.addConstraint(Sketcher.Constraint("Diameter", 1, 8.1))
sketch9.addConstraint(Sketcher.Constraint("DistanceX", -1, 1, 0, 3, 45.0))
sketch9.addConstraint(Sketcher.Constraint("DistanceY", -1, 1, 0, 3, 19.0))
sketch9.setExpression("Constraints[1]", "Params.sketch9_diameter")
sketch9.setExpression("Constraints[2]", "Params.sketch9_diameter2")
pad5 = body.newObject("PartDesign::Pad", "Pad004")
pad5.Profile = sketch9
pad5.setExpression("Length", "Params.pad5_length")

sketch10 = body.newObject("Sketcher::SketchObject", "Sketch009")
sketch10.AttachmentSupport = (doc.getObject("XY_Plane"), [""])
sketch10.MapMode = "FlatFace"
sketch10.AttachmentOffset = App.Placement(App.Vector(0, 0, 5), App.Rotation())
sketch10.addGeometry(Part.Circle(App.Vector(45, 19, 0), App.Vector(0, 0, 1), 8), False)
sketch10.addGeometry(Part.Circle(App.Vector(45, 19, 0), App.Vector(0, 0, 1), 5.05), False)
sketch10.addConstraint(Sketcher.Constraint("Coincident", 1, 3, 0, 3))
sketch10.addConstraint(Sketcher.Constraint("Diameter", 0, 16.0))
sketch10.addConstraint(Sketcher.Constraint("Diameter", 1, 10.1))
sketch10.addConstraint(Sketcher.Constraint("DistanceX", -1, 1, 0, 3, 45.0))
sketch10.addConstraint(Sketcher.Constraint("DistanceY", -1, 1, 0, 3, 19.0))
sketch10.setExpression("Constraints[1]", "Params.sketch10_diameter")
sketch10.setExpression("Constraints[2]", "Params.sketch10_diameter2")
pad6 = body.newObject("PartDesign::Pad", "Pad005")
pad6.Profile = sketch10
pad6.setExpression("Length", "Params.pad6_length")

doc.recompute()
